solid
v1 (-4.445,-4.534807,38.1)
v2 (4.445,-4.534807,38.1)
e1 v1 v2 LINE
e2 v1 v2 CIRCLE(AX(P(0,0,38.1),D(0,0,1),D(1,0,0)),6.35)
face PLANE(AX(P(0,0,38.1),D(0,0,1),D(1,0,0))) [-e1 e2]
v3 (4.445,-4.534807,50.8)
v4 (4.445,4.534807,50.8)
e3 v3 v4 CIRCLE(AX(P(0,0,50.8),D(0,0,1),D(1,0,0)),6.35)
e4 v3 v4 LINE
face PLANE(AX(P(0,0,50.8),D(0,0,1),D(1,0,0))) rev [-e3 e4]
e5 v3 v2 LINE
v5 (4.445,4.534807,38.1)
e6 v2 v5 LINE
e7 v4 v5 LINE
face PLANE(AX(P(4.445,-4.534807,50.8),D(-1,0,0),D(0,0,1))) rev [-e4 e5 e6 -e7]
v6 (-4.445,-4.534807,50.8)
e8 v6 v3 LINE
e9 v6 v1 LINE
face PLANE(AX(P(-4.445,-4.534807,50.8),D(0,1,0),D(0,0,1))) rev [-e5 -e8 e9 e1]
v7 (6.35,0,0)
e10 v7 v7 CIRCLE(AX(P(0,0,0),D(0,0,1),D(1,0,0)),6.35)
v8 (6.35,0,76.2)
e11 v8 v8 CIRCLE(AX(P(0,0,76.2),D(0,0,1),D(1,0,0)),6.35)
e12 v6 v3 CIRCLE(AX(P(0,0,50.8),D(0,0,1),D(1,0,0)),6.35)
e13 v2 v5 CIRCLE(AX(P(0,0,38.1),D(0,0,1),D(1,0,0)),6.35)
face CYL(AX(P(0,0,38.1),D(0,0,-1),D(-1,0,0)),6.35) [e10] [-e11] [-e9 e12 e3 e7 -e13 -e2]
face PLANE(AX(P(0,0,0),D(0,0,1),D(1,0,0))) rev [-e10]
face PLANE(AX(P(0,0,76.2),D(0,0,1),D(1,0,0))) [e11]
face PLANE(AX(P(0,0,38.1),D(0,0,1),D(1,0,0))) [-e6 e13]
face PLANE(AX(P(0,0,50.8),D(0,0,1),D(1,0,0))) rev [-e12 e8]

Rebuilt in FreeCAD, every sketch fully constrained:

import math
import FreeCAD as App
import Part
import Sketcher
Q = App.Units.Quantity

doc = App.newDocument("Part")
body = doc.addObject("PartDesign::Body", "Body")

# Sketch on XY plane
sketch1 = body.newObject("Sketcher::SketchObject", "Sketch")
sketch1.AttachmentSupport = (doc.getObject("XY_Plane"), [""])
sketch1.MapMode = "FlatFace"
sketch1.addGeometry(Part.Circle(App.Vector(0, 0, 0), App.Vector(0, 0, 1), 6), False)
sketch1.addConstraint(Sketcher.Constraint("Coincident", 0, 3, -1, 1))
sketch1.addConstraint(Sketcher.Constraint("Diameter", 0, Q("0.5 in")))
pad1 = body.newObject("PartDesign::Pad", "Pad")
pad1.Profile = sketch1
pad1.Length = Q("1.5 in")

# Sketch on XY plane
sketch2 = body.newObject("Sketcher::SketchObject", "Sketch001")
sketch2.AttachmentSupport = (doc.getObject("XY_Plane"), [""])
sketch2.MapMode = "FlatFace"
sketch2.AttachmentOffset = App.Placement(App.Vector(0, 0, 1.5 * 25.4), App.Rotation())
sketch2.addGeometry(Part.LineSegment(App.Vector(-4, -5, 0), App.Vector(4, -5, 0)), False)
sketch2.addGeometry(Part.LineSegment(App.Vector(4, -5, 0), App.Vector(4, 5, 0)), False)
sketch2.addGeometry(Part.ArcOfCircle(Part.Circle(App.Vector(0, 0, 0), App.Vector(0, 0, 1), 6), math.radians(46), math.radians(226)), False)
sketch2.addConstraint(Sketcher.Constraint("Coincident", 0, 2, 1, 1))
sketch2.addConstraint(Sketcher.Constraint("Coincident", 1, 2, 2, 1))
sketch2.addConstraint(Sketcher.Constraint("Coincident", 2, 2, 0, 1))
sketch2.addConstraint(Sketcher.Constraint("Horizontal", 0))
sketch2.addConstraint(Sketcher.Constraint("Vertical", 1))
sketch2.addConstraint(Sketcher.Constraint("Coincident", 2, 3, -1, 1))
sketch2.addConstraint(Sketcher.Constraint("Radius", 2, Q("0.25 in")))
sketch2.addConstraint(Sketcher.Constraint("DistanceX", 0, 1, 0, 2, Q("0.35 in")))
sketch2.addConstraint(Sketcher.Constraint("DistanceX", -1, 1, 0, 2, Q("0.175 in")))
pad2 = body.newObject("PartDesign::Pad", "Pad001")
pad2.Profile = sketch2
pad2.Length = Q("0.5 in")

# Sketch on XY plane
sketch3 = body.newObject("Sketcher::SketchObject", "Sketch002")
sketch3.AttachmentSupport = (doc.getObject("XY_Plane"), [""])
sketch3.MapMode = "FlatFace"
sketch3.AttachmentOffset = App.Placement(App.Vector(0, 0, 2 * 25.4), App.Rotation())
sketch3.addGeometry(Part.Circle(App.Vector(0, 0, 0), App.Vector(0, 0, 1), 6), False)
sketch3.addConstraint(Sketcher.Constraint("Coincident", 0, 3, -1, 1))
sketch3.addConstraint(Sketcher.Constraint("Diameter", 0, Q("0.5 in")))
pad3 = body.newObject("PartDesign::Pad", "Pad002")
pad3.Profile = sketch3
pad3.Length = Q("1 in")

doc.recompute()
